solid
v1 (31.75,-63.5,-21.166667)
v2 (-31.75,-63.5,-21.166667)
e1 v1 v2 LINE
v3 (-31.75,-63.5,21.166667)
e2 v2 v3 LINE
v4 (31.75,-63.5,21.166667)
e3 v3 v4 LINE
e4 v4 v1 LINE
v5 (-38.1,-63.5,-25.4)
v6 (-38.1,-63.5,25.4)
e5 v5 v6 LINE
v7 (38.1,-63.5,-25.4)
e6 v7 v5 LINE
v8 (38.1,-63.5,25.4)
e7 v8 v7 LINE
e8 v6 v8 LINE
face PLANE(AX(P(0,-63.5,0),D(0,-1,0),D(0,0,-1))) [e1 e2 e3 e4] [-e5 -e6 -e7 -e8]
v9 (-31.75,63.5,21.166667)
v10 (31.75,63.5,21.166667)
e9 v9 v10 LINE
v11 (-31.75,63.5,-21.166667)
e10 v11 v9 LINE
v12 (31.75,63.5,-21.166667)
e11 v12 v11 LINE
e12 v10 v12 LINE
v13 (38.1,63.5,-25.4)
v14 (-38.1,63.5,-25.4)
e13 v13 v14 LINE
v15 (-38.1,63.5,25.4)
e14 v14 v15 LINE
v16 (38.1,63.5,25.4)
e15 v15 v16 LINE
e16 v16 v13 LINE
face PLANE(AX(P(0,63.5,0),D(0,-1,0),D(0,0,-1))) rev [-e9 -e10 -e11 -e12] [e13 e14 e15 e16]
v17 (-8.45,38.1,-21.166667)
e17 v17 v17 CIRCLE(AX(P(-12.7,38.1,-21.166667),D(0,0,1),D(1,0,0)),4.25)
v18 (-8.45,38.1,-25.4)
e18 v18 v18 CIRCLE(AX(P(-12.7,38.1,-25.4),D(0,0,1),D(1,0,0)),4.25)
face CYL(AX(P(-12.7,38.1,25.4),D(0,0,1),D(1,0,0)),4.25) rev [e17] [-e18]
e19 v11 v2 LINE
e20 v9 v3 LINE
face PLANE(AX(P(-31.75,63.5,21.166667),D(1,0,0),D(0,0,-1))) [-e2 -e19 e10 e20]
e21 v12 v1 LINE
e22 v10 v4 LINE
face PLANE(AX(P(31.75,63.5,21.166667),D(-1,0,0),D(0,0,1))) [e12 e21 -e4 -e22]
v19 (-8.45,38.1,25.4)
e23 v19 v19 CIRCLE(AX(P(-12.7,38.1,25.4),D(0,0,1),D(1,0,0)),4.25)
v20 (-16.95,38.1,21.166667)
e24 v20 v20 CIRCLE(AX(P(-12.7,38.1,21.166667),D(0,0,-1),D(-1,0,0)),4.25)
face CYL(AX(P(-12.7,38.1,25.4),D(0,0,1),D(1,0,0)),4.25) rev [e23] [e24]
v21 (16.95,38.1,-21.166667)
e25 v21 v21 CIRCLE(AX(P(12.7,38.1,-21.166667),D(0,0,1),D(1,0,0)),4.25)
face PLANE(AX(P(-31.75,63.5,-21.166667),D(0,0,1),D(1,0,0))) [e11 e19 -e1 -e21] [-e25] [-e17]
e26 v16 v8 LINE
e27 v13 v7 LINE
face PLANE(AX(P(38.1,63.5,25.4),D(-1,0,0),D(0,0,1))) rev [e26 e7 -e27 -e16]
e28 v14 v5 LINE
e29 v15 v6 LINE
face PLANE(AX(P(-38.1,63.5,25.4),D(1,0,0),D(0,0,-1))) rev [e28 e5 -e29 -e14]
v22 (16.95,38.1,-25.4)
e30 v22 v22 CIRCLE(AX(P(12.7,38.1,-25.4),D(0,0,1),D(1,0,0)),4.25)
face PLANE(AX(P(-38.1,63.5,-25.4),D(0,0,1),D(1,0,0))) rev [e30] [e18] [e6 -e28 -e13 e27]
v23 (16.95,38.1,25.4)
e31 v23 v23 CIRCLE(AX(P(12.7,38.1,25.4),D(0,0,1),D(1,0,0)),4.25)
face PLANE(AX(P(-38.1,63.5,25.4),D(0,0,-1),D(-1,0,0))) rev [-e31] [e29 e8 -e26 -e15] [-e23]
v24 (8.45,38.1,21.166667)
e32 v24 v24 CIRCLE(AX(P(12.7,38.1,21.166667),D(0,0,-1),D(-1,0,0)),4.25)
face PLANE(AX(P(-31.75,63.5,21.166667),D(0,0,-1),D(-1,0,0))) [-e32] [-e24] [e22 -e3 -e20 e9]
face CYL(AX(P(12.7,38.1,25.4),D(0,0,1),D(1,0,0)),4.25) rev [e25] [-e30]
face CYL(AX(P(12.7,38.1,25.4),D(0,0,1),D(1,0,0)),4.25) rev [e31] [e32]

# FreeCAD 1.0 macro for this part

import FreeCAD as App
import Part
import Sketcher
Q = App.Units.Quantity


def add_polygon(sketch, points):
    """Adds a closed chain of lines whose ends are joined by coincident constraints."""
    first, n = sketch.GeometryCount, len(points)
    for a, b in zip(points, points[1:] + points[:1]):
        sketch.addGeometry(Part.LineSegment(App.Vector(*a, 0), App.Vector(*b, 0)), False)
    for i in range(n):
        sketch.addConstraint(Sketcher.Constraint("Coincident", first + i, 2, first + (i + 1) % n, 1))

doc = App.newDocument("Part")
body = doc.addObject("PartDesign::Body", "Body")

# Sketch on XZ plane
sketch1 = body.newObject("Sketcher::SketchObject", "Sketch")
sketch1.AttachmentSupport = (doc.getObject("XZ_Plane"), [""])
sketch1.MapMode = "FlatFace"
add_polygon(sketch1, [(-38, -25), (-38, 25), (38, 25), (38, -25)])  # lines 0-3
add_polygon(sketch1, [(32, 21), (-32, 21), (-32, -21), (32, -21)])  # lines 4-7
sketch1.addConstraint(Sketcher.Constraint("Vertical", 0))
sketch1.addConstraint(Sketcher.Constraint("Horizontal", 1))
sketch1.addConstraint(Sketcher.Constraint("Vertical", 2))
sketch1.addConstraint(Sketcher.Constraint("Horizontal", 3))
sketch1.addConstraint(Sketcher.Constraint("Horizontal", 4))
sketch1.addConstraint(Sketcher.Constraint("Vertical", 5))
sketch1.addConstraint(Sketcher.Constraint("Horizontal", 6))
sketch1.addConstraint(Sketcher.Constraint("Vertical", 7))
sketch1.addConstraint(Sketcher.Constraint("Symmetric", 0, 2, 2, 2, -1, 1))
sketch1.addConstraint(Sketcher.Constraint("Symmetric", 4, 2, 6, 2, -1, 1))
sketch1.addConstraint(Sketcher.Constraint("DistanceX", 1, 1, 1, 2, Q("3 in")))
sketch1.addConstraint(Sketcher.Constraint("DistanceY", 0, 1, 0, 2, Q("2 in")))
sketch1.addConstraint(Sketcher.Constraint("DistanceX", 4, 2, 4, 1, Q("2.5 in")))
sketch1.addConstraint(Sketcher.Constraint("DistanceY", 5, 2, 5, 1, Q("42.333333 mm")))
pad1 = body.newObject("PartDesign::Pad", "Pad")
pad1.Profile = sketch1
pad1.Length = Q("5 in")
pad1.Midplane = True

# Sketch on XY plane
sketch2 = body.newObject("Sketcher::SketchObject", "Sketch001")
sketch2.AttachmentSupport = (doc.getObject("XY_Plane"), [""])
sketch2.MapMode = "FlatFace"
sketch2.AttachmentOffset = App.Placement(App.Vector(0, 0, 1 * 25.4), App.Rotation())
sketch2.addGeometry(Part.Circle(App.Vector(-12.7, 38.1, 0), App.Vector(0, 0, 1), 4.2), False)
sketch2.addGeometry(Part.Circle(App.Vector(12.7, 38.1, 0), App.Vector(0, 0, 1), 4.2), False)
sketch2.addConstraint(Sketcher.Constraint("Equal", 0, 1))
sketch2.addConstraint(Sketcher.Constraint("Symmetric", 0, 3, 1, 3, -2))
sketch2.addConstraint(Sketcher.Constraint("DistanceX", 0, 3, 1, 3, Q("1 in")))
sketch2.addConstraint(Sketcher.Constraint("DistanceY", -1, 1, 0, 3, Q("1.5 in")))
sketch2.addConstraint(Sketcher.Constraint("Diameter", 0, Q("8.5 mm")))
doc.recompute()
hole = body.newObject("PartDesign::Hole", "Hole")
hole.Profile = sketch2
hole.ThreadType = "None"
hole.Diameter = 8.5
hole.DepthType = "ThroughAll"

doc.recompute()
